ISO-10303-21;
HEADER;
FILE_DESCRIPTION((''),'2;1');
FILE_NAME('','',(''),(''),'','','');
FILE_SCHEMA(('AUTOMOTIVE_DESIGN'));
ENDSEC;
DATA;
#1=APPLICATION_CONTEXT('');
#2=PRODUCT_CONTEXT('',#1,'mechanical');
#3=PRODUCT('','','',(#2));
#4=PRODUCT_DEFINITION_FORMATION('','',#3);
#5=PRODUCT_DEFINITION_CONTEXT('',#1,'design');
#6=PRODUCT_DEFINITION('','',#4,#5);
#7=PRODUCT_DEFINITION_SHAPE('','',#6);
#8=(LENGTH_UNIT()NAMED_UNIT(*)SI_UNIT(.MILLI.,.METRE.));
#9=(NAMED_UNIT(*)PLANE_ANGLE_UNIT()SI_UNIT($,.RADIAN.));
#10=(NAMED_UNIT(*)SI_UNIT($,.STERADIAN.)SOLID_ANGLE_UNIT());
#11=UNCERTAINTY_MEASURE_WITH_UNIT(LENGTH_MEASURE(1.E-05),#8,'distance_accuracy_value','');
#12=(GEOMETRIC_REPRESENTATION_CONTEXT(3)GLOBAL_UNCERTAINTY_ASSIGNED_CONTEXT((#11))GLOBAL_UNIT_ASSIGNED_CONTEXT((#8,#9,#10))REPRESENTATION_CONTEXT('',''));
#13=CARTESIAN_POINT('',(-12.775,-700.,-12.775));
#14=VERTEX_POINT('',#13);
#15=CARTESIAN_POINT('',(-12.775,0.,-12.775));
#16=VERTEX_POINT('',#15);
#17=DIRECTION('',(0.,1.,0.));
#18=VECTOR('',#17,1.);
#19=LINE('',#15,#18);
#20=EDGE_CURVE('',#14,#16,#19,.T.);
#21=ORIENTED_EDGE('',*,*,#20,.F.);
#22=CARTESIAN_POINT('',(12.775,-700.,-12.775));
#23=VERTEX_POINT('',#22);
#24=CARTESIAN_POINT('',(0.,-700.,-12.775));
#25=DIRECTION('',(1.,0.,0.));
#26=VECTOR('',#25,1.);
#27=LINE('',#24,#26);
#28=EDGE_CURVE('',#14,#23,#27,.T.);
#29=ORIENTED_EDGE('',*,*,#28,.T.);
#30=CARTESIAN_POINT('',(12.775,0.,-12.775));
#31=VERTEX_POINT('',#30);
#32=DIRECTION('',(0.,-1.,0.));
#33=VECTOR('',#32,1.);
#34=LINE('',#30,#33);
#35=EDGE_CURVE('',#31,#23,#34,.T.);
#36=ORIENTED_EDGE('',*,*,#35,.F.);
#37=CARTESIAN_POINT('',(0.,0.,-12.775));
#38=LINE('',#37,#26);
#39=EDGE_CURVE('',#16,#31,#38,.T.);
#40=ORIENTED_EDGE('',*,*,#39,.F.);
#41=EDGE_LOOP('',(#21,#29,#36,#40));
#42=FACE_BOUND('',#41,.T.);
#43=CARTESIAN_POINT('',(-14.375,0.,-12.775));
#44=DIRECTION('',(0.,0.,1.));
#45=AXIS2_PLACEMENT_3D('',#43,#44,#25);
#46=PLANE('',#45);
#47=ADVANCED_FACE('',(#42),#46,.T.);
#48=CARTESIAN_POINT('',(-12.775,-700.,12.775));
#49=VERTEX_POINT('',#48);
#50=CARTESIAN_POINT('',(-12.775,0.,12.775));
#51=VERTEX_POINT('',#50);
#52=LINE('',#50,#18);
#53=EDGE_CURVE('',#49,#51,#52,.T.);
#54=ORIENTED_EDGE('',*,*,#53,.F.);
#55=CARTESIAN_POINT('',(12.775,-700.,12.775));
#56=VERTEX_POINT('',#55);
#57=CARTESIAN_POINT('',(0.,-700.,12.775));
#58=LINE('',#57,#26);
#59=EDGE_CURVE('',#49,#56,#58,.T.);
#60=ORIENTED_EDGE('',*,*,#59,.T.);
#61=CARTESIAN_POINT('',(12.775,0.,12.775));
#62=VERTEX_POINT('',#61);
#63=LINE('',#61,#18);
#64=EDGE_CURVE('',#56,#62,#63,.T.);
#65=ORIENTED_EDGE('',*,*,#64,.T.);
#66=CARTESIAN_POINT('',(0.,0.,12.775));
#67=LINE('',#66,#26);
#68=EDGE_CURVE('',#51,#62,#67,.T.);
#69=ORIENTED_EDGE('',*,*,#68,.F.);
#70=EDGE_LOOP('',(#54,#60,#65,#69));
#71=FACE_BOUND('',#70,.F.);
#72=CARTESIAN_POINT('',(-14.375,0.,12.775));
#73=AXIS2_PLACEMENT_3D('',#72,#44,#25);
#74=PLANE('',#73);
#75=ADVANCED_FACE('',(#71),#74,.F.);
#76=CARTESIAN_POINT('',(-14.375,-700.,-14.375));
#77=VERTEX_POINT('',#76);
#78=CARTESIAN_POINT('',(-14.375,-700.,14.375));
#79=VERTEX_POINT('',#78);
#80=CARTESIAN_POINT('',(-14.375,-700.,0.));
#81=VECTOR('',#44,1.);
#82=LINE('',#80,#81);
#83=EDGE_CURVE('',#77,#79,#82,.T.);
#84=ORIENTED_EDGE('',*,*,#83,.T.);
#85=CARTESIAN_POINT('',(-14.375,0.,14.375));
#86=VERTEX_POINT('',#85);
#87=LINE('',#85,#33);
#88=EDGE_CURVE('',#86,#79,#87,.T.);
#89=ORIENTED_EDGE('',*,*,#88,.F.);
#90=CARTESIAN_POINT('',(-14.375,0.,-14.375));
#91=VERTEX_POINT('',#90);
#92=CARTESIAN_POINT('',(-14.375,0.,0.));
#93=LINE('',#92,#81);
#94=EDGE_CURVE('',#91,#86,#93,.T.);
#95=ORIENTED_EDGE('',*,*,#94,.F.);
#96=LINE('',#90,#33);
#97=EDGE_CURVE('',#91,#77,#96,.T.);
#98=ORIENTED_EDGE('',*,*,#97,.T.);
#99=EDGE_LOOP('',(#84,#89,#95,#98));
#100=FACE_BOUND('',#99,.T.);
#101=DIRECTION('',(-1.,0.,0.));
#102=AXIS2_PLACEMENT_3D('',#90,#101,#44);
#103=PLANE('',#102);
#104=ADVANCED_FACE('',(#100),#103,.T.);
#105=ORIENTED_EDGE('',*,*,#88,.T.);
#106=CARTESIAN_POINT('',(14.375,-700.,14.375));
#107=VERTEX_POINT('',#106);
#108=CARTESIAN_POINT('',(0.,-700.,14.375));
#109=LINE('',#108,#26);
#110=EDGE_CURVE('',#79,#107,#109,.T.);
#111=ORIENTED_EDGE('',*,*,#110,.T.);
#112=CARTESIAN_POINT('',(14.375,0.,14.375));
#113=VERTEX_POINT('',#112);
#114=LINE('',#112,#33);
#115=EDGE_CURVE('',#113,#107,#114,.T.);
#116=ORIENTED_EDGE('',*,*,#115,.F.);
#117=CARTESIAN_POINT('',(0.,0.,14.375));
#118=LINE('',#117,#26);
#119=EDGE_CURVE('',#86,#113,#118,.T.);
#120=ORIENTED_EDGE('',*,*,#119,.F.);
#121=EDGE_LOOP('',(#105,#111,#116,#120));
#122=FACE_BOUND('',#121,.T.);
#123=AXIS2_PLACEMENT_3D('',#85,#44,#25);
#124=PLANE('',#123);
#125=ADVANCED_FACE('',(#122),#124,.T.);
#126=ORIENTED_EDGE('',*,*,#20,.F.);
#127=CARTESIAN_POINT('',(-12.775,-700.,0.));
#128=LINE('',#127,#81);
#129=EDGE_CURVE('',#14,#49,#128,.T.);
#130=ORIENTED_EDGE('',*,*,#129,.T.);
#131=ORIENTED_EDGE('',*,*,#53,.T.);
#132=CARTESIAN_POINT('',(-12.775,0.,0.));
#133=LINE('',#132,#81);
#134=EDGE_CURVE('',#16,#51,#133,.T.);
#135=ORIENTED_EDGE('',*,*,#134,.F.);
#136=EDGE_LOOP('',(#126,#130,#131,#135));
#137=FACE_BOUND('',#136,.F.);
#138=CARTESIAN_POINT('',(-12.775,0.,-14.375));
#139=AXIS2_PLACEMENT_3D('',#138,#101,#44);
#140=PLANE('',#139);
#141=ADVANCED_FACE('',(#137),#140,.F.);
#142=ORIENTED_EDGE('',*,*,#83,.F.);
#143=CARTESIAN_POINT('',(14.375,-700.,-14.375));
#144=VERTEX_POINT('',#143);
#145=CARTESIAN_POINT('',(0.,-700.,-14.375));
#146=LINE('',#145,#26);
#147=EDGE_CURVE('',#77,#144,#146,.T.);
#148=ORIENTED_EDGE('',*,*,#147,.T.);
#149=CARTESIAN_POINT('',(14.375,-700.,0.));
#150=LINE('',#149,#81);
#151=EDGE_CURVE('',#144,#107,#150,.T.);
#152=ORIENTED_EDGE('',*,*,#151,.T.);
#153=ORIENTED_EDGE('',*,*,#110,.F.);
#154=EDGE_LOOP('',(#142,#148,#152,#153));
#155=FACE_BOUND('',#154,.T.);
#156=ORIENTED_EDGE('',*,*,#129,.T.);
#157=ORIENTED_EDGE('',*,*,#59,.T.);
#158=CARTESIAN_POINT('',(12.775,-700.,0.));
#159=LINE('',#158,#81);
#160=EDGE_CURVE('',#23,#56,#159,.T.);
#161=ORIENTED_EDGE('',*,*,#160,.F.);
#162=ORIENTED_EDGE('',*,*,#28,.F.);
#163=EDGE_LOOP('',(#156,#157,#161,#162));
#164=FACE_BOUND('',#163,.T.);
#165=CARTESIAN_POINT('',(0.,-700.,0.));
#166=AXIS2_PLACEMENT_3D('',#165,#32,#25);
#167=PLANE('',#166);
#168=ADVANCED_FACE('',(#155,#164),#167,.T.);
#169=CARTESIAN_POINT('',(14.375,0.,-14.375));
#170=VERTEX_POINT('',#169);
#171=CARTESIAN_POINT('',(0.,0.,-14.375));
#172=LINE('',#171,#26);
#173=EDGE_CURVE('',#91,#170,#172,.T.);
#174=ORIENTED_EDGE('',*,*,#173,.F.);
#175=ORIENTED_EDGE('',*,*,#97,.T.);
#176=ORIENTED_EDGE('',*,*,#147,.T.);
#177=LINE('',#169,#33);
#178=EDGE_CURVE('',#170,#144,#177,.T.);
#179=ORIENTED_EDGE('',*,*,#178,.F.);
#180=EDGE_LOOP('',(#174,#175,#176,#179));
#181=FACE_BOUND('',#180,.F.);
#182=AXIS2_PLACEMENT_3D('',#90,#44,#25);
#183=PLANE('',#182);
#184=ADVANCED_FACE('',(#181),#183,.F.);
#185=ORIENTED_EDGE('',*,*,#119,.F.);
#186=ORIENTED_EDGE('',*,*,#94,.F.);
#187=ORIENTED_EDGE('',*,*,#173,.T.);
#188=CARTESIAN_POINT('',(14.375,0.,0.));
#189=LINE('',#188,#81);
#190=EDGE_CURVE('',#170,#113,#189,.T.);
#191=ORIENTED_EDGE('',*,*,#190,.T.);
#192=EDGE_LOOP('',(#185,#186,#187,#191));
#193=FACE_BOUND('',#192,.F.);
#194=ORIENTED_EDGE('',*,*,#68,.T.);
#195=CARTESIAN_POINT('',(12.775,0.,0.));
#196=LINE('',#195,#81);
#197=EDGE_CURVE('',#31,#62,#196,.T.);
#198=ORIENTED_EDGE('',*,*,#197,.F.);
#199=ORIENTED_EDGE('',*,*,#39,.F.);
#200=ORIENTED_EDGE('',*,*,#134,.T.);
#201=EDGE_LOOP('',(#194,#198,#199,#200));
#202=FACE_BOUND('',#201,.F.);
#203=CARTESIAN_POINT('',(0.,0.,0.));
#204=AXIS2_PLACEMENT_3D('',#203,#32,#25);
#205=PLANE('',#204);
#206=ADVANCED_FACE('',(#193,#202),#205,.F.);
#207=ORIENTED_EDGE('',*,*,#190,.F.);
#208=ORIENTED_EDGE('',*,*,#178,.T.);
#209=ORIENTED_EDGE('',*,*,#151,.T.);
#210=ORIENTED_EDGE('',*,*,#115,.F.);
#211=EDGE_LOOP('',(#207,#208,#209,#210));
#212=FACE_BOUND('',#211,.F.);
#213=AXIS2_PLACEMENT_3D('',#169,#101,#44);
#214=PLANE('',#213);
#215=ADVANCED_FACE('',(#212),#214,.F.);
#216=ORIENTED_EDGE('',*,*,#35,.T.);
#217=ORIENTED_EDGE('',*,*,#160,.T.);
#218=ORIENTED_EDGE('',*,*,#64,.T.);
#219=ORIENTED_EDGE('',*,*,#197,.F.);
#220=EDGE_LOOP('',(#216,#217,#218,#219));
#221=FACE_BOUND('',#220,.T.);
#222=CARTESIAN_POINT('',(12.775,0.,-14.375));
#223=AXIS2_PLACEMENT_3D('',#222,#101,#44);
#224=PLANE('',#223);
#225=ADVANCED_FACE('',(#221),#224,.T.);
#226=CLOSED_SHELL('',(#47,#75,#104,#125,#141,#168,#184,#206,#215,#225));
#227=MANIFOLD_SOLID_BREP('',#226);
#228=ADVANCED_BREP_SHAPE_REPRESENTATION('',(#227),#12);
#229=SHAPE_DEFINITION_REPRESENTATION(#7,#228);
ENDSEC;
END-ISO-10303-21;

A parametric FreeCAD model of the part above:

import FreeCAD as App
import Part
import Sketcher

V = App.Vector
Q = App.Units.Quantity


def faces_at(feature, points):
    """Names of the faces that lie closest to the given points."""
    faces = feature.Shape.Faces
    near = lambda p: min(range(len(faces)), key=lambda i: faces[i].distToShape(Part.Vertex(*p))[0])
    return sorted({f"Face{near(p) + 1}" for p in points})

doc = App.newDocument("Part")
body = doc.addObject("PartDesign::Body", "Body")

# Sketch on XZ plane
sketch1 = doc.addObject("Sketcher::SketchObject", "Sketch")
body.addObject(sketch1)
sketch1.AttachmentSupport = (doc.XZ_Plane, [""])
sketch1.MapMode = "FlatFace"
sketch1.addGeometry([
    Part.LineSegment(V(-14, 14, 0), V(-14, -14, 0)),
    Part.LineSegment(V(-14, -14, 0), V(14, -14, 0)),
    Part.LineSegment(V(14, -14, 0), V(14, 14, 0)),
    Part.LineSegment(V(14, 14, 0), V(-14, 14, 0)),
], False)
sketch1.addConstraint([
    Sketcher.Constraint("Coincident", 0, 2, 1, 1),
    Sketcher.Constraint("Coincident", 1, 2, 2, 1),
    Sketcher.Constraint("Coincident", 2, 2, 3, 1),
    Sketcher.Constraint("Coincident", 3, 2, 0, 1),
    Sketcher.Constraint("Vertical", 0),
    Sketcher.Constraint("Horizontal", 1),
    Sketcher.Constraint("Vertical", 2),
    Sketcher.Constraint("Horizontal", 3),
    Sketcher.Constraint("Symmetric", 0, 2, 2, 2, -1, 1),
    Sketcher.Constraint("Equal", 3, 0),
    Sketcher.Constraint("DistanceX", 1, 1, 1, 2, Q("28.75 mm")),
])
pad1 = doc.addObject("PartDesign::Pad", "Pad")
body.addObject(pad1)
pad1.Profile = sketch1
pad1.Length = 700
doc.recompute()

thickness = doc.addObject("PartDesign::Thickness", "Thickness")
body.addObject(thickness)
thickness.Base = (pad1, faces_at(pad1, [(0, 0, 0), (0, -700, 0)]))
thickness.Value = 1.6
thickness.Reversed = True
thickness.Join = "Arc"

doc.recompute()
